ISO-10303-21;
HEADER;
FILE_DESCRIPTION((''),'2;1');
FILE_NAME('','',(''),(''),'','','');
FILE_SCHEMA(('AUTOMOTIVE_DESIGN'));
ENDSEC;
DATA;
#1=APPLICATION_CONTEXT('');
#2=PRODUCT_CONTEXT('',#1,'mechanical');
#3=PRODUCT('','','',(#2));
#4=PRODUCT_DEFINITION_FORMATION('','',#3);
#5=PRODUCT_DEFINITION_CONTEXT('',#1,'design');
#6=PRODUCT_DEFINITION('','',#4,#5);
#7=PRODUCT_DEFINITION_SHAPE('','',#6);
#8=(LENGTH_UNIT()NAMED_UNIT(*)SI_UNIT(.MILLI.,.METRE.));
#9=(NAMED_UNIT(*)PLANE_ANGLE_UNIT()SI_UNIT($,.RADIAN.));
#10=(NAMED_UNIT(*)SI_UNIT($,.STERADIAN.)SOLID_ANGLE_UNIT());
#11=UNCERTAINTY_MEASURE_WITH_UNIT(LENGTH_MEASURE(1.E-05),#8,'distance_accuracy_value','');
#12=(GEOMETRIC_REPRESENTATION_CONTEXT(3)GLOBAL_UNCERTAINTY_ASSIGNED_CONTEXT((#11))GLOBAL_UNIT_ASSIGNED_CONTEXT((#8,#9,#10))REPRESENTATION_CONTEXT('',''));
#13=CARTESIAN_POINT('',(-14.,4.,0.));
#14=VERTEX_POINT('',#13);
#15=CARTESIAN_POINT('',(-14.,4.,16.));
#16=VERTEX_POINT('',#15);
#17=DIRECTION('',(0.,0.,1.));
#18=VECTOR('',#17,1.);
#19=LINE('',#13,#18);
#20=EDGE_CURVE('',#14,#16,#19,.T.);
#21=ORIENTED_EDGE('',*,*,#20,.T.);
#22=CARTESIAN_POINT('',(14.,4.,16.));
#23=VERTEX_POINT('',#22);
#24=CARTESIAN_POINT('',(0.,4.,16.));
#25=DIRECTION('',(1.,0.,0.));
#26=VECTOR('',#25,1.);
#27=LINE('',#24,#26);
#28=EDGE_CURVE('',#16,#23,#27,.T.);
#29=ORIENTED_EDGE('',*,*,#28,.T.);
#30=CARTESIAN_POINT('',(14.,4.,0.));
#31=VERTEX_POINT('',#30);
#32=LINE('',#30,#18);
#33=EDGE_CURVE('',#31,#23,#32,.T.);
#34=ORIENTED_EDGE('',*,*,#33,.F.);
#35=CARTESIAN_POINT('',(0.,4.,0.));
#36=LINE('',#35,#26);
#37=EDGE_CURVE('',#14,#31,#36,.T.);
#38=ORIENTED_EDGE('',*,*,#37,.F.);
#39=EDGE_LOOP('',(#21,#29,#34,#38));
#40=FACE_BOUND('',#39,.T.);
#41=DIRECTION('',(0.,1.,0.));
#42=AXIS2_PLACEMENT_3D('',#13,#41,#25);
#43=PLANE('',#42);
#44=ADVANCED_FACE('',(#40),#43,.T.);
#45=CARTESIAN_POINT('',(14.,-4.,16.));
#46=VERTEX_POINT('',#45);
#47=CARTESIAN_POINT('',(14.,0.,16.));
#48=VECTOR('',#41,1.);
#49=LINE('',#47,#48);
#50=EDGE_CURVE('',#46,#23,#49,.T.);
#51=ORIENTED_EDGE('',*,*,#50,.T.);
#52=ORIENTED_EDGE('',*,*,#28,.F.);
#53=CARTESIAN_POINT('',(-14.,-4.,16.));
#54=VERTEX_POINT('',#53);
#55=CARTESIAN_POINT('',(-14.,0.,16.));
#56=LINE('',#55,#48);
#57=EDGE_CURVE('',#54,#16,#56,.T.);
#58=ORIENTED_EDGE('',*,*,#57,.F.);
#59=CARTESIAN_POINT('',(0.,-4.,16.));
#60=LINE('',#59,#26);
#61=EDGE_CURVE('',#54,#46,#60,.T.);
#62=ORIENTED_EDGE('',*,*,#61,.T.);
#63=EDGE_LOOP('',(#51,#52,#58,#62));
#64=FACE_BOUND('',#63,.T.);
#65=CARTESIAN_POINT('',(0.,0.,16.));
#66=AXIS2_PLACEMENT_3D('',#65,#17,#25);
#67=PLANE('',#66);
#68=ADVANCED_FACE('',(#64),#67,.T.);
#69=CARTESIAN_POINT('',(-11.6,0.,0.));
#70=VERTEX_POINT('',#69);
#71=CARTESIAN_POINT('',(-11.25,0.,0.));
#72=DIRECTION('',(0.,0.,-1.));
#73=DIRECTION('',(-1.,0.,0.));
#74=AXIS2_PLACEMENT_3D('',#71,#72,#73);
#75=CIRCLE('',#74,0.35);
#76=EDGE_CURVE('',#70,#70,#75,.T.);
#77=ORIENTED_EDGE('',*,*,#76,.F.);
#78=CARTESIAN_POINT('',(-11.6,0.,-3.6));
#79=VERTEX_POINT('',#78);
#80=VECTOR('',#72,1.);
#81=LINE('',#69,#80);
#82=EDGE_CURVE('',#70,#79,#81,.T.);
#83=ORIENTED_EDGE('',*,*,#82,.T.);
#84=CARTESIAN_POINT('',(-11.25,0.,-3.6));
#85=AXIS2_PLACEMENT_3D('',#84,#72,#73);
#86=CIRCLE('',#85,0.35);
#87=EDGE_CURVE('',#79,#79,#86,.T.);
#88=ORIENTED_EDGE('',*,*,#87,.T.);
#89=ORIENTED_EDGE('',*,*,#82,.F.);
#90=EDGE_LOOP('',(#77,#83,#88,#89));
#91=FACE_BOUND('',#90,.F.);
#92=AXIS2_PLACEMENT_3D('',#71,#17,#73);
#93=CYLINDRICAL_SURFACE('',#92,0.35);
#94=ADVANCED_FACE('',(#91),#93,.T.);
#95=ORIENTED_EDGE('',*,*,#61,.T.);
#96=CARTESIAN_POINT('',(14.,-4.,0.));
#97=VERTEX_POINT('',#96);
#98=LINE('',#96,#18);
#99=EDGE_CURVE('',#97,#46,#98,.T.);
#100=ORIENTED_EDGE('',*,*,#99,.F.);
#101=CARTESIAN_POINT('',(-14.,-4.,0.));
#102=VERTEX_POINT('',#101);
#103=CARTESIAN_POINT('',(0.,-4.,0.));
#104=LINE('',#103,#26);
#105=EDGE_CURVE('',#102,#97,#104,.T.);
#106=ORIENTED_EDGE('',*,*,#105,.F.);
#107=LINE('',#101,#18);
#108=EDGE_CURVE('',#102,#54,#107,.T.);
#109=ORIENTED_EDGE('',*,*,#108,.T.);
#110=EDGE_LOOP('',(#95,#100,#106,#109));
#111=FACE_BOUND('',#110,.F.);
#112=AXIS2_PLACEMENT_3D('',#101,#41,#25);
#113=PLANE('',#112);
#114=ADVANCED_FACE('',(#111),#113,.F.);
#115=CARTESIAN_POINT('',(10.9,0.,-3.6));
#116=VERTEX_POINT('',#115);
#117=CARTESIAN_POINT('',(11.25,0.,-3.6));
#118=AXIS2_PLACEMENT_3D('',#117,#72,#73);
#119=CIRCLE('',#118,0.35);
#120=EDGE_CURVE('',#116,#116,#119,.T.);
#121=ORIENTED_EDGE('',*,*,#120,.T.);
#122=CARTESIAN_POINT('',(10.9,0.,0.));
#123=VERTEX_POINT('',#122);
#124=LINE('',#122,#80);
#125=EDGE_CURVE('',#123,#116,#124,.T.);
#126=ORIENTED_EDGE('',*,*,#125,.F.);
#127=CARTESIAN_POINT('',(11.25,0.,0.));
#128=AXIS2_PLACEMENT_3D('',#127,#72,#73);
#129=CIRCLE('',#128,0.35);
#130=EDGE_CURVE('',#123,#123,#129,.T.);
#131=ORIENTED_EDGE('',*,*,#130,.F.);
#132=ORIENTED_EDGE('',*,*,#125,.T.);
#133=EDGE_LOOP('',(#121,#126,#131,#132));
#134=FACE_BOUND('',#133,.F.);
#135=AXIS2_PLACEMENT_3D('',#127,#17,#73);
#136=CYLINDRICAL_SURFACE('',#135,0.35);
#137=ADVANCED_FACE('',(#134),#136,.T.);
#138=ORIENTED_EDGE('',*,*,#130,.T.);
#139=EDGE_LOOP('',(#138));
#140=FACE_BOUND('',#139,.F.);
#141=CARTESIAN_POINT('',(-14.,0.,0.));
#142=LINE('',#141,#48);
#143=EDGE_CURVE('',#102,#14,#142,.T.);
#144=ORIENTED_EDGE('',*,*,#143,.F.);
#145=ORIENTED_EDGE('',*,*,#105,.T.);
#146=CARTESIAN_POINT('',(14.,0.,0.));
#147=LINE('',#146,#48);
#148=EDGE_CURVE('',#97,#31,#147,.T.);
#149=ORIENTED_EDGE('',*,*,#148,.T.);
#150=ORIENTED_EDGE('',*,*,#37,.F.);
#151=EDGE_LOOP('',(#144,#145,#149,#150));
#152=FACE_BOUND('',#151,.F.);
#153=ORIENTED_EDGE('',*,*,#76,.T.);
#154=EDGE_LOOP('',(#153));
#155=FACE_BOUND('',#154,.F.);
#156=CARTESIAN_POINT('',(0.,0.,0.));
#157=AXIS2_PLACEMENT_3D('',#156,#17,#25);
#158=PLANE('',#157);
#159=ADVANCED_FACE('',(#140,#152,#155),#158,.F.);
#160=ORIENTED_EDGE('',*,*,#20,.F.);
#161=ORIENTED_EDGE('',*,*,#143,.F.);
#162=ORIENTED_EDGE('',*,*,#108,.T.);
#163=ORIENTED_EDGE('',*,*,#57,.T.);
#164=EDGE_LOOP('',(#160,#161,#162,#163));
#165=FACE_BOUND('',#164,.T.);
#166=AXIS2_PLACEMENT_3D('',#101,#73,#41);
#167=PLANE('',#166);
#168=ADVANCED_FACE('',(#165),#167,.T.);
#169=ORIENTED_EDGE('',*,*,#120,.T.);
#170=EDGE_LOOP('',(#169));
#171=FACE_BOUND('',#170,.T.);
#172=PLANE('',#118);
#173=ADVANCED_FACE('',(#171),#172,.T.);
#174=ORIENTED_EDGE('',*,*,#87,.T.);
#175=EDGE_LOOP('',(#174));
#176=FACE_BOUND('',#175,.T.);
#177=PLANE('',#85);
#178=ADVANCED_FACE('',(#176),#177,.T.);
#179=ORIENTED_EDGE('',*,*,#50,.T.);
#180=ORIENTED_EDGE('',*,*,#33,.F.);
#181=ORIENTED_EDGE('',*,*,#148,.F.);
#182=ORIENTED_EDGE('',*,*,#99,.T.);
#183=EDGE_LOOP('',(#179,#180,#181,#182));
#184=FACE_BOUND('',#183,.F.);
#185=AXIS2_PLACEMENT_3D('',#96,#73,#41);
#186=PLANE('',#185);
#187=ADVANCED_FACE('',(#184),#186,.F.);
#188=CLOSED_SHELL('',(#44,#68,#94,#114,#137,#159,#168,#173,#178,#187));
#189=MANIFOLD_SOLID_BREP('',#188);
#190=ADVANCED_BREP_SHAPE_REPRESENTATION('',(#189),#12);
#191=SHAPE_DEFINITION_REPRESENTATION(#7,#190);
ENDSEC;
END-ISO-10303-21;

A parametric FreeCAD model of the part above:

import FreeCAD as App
import Part
import Sketcher

V = App.Vector
Q = App.Units.Quantity

doc = App.newDocument("Part")
body = doc.addObject("PartDesign::Body", "Body")

sketch1 = body.newObject("Sketcher::SketchObject", "Sketch")
sketch1.AttachmentSupport = (doc.getObject("XY_Plane"), [""])
sketch1.MapMode = "FlatFace"
sketch1.addGeometry([
    Part.LineSegment(V(-14, 4, 0), V(-14, -4, 0)),
    Part.LineSegment(V(-14, -4, 0), V(14, -4, 0)),
    Part.LineSegment(V(14, -4, 0), V(14, 4, 0)),
    Part.LineSegment(V(14, 4, 0), V(-14, 4, 0)),
], False)
sketch1.addConstraint([
    Sketcher.Constraint("Coincident", 0, 2, 1, 1),
    Sketcher.Constraint("Coincident", 1, 2, 2, 1),
    Sketcher.Constraint("Coincident", 2, 2, 3, 1),
    Sketcher.Constraint("Coincident", 3, 2, 0, 1),
    Sketcher.Constraint("Vertical", 0),
    Sketcher.Constraint("Horizontal", 1),
    Sketcher.Constraint("Vertical", 2),
    Sketcher.Constraint("Horizontal", 3),
    Sketcher.Constraint("Symmetric", 0, 2, 2, 2, -1, 1),
    Sketcher.Constraint("DistanceX", 1, 1, 1, 2, Q("28 mm")),
    Sketcher.Constraint("DistanceY", 0, 2, 0, 1, Q("8 mm")),
])
pad1 = body.newObject("PartDesign::Pad", "Pad")
pad1.Profile = sketch1
pad1.Length = 16

sketch2 = body.newObject("Sketcher::SketchObject", "Sketch001")
sketch2.AttachmentSupport = (doc.getObject("XY_Plane"), [""])
sketch2.MapMode = "FlatFace"
sketch2.addGeometry([
    Part.Circle(V(11.25, 0, 0), V(0, 0, 1), 0.35),
    Part.Circle(V(-11.25, 0, 0), V(0, 0, 1), 0.35),
], False)
sketch2.addConstraint([
    Sketcher.Constraint("Equal", 0, 1),
    Sketcher.Constraint("Symmetric", 0, 3, 1, 3, -1, 1),
    Sketcher.Constraint("PointOnObject", 0, 3, -1),
    Sketcher.Constraint("Diameter", 0, Q("0.7 mm")),
    Sketcher.Constraint("DistanceX", 1, 3, 0, 3, Q("22.5 mm")),
])
pad2 = body.newObject("PartDesign::Pad", "Pad001")
pad2.Profile = sketch2
pad2.Length = 3.6
pad2.Reversed = True

doc.recompute()
